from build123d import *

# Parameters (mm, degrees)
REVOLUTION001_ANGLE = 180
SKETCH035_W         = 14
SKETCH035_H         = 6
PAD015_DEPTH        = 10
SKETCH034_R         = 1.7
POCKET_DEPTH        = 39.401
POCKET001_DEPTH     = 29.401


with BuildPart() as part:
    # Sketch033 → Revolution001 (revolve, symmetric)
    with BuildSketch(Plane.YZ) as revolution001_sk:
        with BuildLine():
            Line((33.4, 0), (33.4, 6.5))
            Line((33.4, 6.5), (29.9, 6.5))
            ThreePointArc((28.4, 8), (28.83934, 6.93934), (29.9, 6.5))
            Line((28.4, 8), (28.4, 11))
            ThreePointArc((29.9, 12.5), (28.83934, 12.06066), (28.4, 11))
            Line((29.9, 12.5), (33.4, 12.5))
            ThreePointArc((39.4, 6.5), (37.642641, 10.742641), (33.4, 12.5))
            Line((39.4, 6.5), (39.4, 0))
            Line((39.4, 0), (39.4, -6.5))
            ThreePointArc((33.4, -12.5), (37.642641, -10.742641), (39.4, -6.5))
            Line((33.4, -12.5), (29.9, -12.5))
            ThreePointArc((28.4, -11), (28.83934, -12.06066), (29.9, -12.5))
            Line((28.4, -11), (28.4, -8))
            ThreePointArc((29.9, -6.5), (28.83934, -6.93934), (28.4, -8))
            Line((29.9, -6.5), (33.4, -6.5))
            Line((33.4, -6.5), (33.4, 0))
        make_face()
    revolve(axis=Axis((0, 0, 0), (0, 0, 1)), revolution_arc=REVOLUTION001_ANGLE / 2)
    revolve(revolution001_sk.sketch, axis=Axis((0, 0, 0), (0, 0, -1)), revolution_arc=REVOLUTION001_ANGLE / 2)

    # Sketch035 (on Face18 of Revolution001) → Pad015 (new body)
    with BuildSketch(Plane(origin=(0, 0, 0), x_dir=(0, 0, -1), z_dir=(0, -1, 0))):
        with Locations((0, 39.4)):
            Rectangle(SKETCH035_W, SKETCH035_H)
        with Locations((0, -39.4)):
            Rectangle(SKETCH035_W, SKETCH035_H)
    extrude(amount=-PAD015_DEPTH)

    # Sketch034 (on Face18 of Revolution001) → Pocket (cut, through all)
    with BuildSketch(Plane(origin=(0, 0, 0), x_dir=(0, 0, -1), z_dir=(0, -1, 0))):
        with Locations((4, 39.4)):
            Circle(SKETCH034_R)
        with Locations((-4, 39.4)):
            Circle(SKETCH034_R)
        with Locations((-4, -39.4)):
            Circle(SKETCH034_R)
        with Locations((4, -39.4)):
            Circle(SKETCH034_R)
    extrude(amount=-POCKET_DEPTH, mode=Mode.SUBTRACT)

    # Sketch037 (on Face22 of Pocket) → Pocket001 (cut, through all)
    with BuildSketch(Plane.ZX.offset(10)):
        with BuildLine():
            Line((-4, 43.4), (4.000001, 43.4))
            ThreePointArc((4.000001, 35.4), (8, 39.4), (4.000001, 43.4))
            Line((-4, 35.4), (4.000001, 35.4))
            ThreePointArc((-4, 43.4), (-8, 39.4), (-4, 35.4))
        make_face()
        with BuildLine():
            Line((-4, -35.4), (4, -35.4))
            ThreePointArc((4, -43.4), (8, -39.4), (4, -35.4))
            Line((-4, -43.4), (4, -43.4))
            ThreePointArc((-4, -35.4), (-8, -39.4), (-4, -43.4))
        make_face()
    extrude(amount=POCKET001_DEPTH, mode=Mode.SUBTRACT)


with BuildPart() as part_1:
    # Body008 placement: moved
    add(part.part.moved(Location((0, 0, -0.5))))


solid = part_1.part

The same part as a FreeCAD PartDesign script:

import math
import FreeCAD as App
import Part
import Sketcher
from FreeCAD import Vector

doc = App.newDocument("Part")
body = doc.addObject("PartDesign::Body", "Body")

# Sketch on YZ plane
sketch1 = body.newObject("Sketcher::SketchObject", "Sketch")
sketch1.AttachmentSupport = (doc.getObject("YZ_Plane"), [""])
sketch1.MapMode = "FlatFace"
sketch1.addGeometry([
    Part.LineSegment(Vector(29.9, 6.5, 0), Vector(33.4, 6.5, 0)),  # 0
    Part.LineSegment(Vector(33.4, 6.5, 0), Vector(33.4, -6.5, 0)),  # 1
    Part.LineSegment(Vector(33.4, -6.5, 0), Vector(29.9, -6.5, 0)),  # 2
    Part.ArcOfCircle(Part.Circle(Vector(29.9, -8, 0), Vector(0, 0, 1), 1.5), math.radians(90), math.radians(180)),  # 3
    Part.LineSegment(Vector(28.4, -8, 0), Vector(28.4, -11, 0)),  # 4
    Part.ArcOfCircle(Part.Circle(Vector(29.9, -11, 0), Vector(0, 0, 1), 1.5), math.radians(-180), math.radians(-90)),  # 5
    Part.LineSegment(Vector(29.9, -12.5, 0), Vector(33.4, -12.5, 0)),  # 6
    Part.ArcOfCircle(Part.Circle(Vector(33.4, -6.5, 0), Vector(0, 0, 1), 6), math.radians(-90), math.radians(0)),  # 7
    Part.LineSegment(Vector(39.4, -6.5, 0), Vector(39.4, 6.5, 0)),  # 8
    Part.ArcOfCircle(Part.Circle(Vector(33.4, 6.5, 0), Vector(0, 0, 1), 6), math.radians(0), math.radians(90)),  # 9
    Part.LineSegment(Vector(33.4, 12.5, 0), Vector(29.9, 12.5, 0)),  # 10
    Part.ArcOfCircle(Part.Circle(Vector(29.9, 11, 0), Vector(0, 0, 1), 1.5), math.radians(90), math.radians(180)),  # 11
    Part.LineSegment(Vector(28.4, 11, 0), Vector(28.4, 8, 0)),  # 12
    Part.ArcOfCircle(Part.Circle(Vector(29.9, 8, 0), Vector(0, 0, 1), 1.5), math.radians(-180), math.radians(-90)),  # 13
], False)
sketch1.addConstraint([
    Sketcher.Constraint("Coincident", 0, 2, 1, 1),
    Sketcher.Constraint("Coincident", 1, 2, 2, 1),
    Sketcher.Constraint("Tangent", 2, 2, 3, 1),
    Sketcher.Constraint("Tangent", 3, 2, 4, 1),
    Sketcher.Constraint("Tangent", 4, 2, 5, 1),
    Sketcher.Constraint("Tangent", 5, 2, 6, 1),
    Sketcher.Constraint("Tangent", 6, 2, 7, 1),
    Sketcher.Constraint("Tangent", 7, 2, 8, 1),
    Sketcher.Constraint("Tangent", 8, 2, 9, 1),
    Sketcher.Constraint("Tangent", 9, 2, 10, 1),
    Sketcher.Constraint("Tangent", 10, 2, 11, 1),
    Sketcher.Constraint("Tangent", 11, 2, 12, 1),
    Sketcher.Constraint("Tangent", 12, 2, 13, 1),
    Sketcher.Constraint("Tangent", 13, 2, 0, 1),
    Sketcher.Constraint("Horizontal", 0),
    Sketcher.Constraint("Vertical", 1),
    Sketcher.Constraint("Horizontal", 2),
    Sketcher.Constraint("Vertical", 4),
    Sketcher.Constraint("Horizontal", 6),
    Sketcher.Constraint("Vertical", 8),
    Sketcher.Constraint("Horizontal", 10),
    Sketcher.Constraint("Vertical", 12),
    Sketcher.Constraint("Coincident", 0, 2, 9, 3),
    Sketcher.Constraint("Coincident", 1, 2, 7, 3),
    Sketcher.Constraint("Equal", 3, 5),
    Sketcher.Constraint("Equal", 5, 11),
    Sketcher.Constraint("Equal", 11, 13),
    Sketcher.Constraint("Symmetric", 5, 3, 11, 3, -1),
    Sketcher.Constraint("Radius", 7, 5.999999),
    Sketcher.Constraint("Radius", 3, 1.500001),
    Sketcher.Constraint("DistanceY", 1, 2, 1, 1, 13.0),
    Sketcher.Constraint("DistanceX", 0, 1, 0, 2, 3.5),
    Sketcher.Constraint("DistanceX", -1, 1, 3, 3, 29.900001),
])
revolution = body.newObject("PartDesign::Revolution", "Revolution")
revolution.Profile = sketch1
revolution.ReferenceAxis = (sketch1, ["V_Axis"])
revolution.Angle = 90

# Sketch on YZ plane
sketch2 = body.newObject("Sketcher::SketchObject", "Sketch001")
sketch2.AttachmentSupport = (doc.getObject("YZ_Plane"), [""])
sketch2.MapMode = "FlatFace"
sketch2.addGeometry([
    Part.LineSegment(Vector(29.9, 6.5, 0), Vector(33.4, 6.5, 0)),  # 0
    Part.LineSegment(Vector(33.4, 6.5, 0), Vector(33.4, -6.5, 0)),  # 1
    Part.LineSegment(Vector(33.4, -6.5, 0), Vector(29.9, -6.5, 0)),  # 2
    Part.ArcOfCircle(Part.Circle(Vector(29.9, -8, 0), Vector(0, 0, 1), 1.5), math.radians(90), math.radians(180)),  # 3
    Part.LineSegment(Vector(28.4, -8, 0), Vector(28.4, -11, 0)),  # 4
    Part.ArcOfCircle(Part.Circle(Vector(29.9, -11, 0), Vector(0, 0, 1), 1.5), math.radians(-180), math.radians(-90)),  # 5
    Part.LineSegment(Vector(29.9, -12.5, 0), Vector(33.4, -12.5, 0)),  # 6
    Part.ArcOfCircle(Part.Circle(Vector(33.4, -6.5, 0), Vector(0, 0, 1), 6), math.radians(-90), math.radians(0)),  # 7
    Part.LineSegment(Vector(39.4, -6.5, 0), Vector(39.4, 6.5, 0)),  # 8
    Part.ArcOfCircle(Part.Circle(Vector(33.4, 6.5, 0), Vector(0, 0, 1), 6), math.radians(0), math.radians(90)),  # 9
    Part.LineSegment(Vector(33.4, 12.5, 0), Vector(29.9, 12.5, 0)),  # 10
    Part.ArcOfCircle(Part.Circle(Vector(29.9, 11, 0), Vector(0, 0, 1), 1.5), math.radians(90), math.radians(180)),  # 11
    Part.LineSegment(Vector(28.4, 11, 0), Vector(28.4, 8, 0)),  # 12
    Part.ArcOfCircle(Part.Circle(Vector(29.9, 8, 0), Vector(0, 0, 1), 1.5), math.radians(-180), math.radians(-90)),  # 13
], False)
sketch2.addConstraint([
    Sketcher.Constraint("Coincident", 0, 2, 1, 1),
    Sketcher.Constraint("Coincident", 1, 2, 2, 1),
    Sketcher.Constraint("Tangent", 2, 2, 3, 1),
    Sketcher.Constraint("Tangent", 3, 2, 4, 1),
    Sketcher.Constraint("Tangent", 4, 2, 5, 1),
    Sketcher.Constraint("Tangent", 5, 2, 6, 1),
    Sketcher.Constraint("Tangent", 6, 2, 7, 1),
    Sketcher.Constraint("Tangent", 7, 2, 8, 1),
    Sketcher.Constraint("Tangent", 8, 2, 9, 1),
    Sketcher.Constraint("Tangent", 9, 2, 10, 1),
    Sketcher.Constraint("Tangent", 10, 2, 11, 1),
    Sketcher.Constraint("Tangent", 11, 2, 12, 1),
    Sketcher.Constraint("Tangent", 12, 2, 13, 1),
    Sketcher.Constraint("Tangent", 13, 2, 0, 1),
    Sketcher.Constraint("Horizontal", 0),
    Sketcher.Constraint("Vertical", 1),
    Sketcher.Constraint("Horizontal", 2),
    Sketcher.Constraint("Vertical", 4),
    Sketcher.Constraint("Horizontal", 6),
    Sketcher.Constraint("Vertical", 8),
    Sketcher.Constraint("Horizontal", 10),
    Sketcher.Constraint("Vertical", 12),
    Sketcher.Constraint("Coincident", 0, 2, 9, 3),
    Sketcher.Constraint("Coincident", 1, 2, 7, 3),
    Sketcher.Constraint("Equal", 3, 5),
    Sketcher.Constraint("Equal", 5, 11),
    Sketcher.Constraint("Equal", 11, 13),
    Sketcher.Constraint("Symmetric", 5, 3, 11, 3, -1),
    Sketcher.Constraint("Radius", 7, 5.999999),
    Sketcher.Constraint("Radius", 3, 1.500001),
    Sketcher.Constraint("DistanceY", 1, 2, 1, 1, 13.0),
    Sketcher.Constraint("DistanceX", 0, 1, 0, 2, 3.5),
    Sketcher.Constraint("DistanceX", -1, 1, 3, 3, 29.900001),
])
revolution2 = body.newObject("PartDesign::Revolution", "Revolution001")
revolution2.Profile = sketch2
revolution2.ReferenceAxis = (sketch2, ["V_Axis"])
revolution2.Angle = 90
revolution2.Reversed = True

# Sketch on XZ plane
sketch3 = body.newObject("Sketcher::SketchObject", "Sketch002")
sketch3.AttachmentSupport = (doc.getObject("XZ_Plane"), [""])
sketch3.MapMode = "FlatFace"
sketch3.addGeometry([
    Part.LineSegment(Vector(42, 7, 0), Vector(36, 7, 0)),  # 0
    Part.LineSegment(Vector(36, 7, 0), Vector(36, -7, 0)),  # 1
    Part.LineSegment(Vector(36, -7, 0), Vector(42, -7, 0)),  # 2
    Part.LineSegment(Vector(42, -7, 0), Vector(42, 7, 0)),  # 3
    Part.LineSegment(Vector(-36, 7, 0), Vector(-42, 7, 0)),  # 4
    Part.LineSegment(Vector(-42, 7, 0), Vector(-42, -7, 0)),  # 5
    Part.LineSegment(Vector(-42, -7, 0), Vector(-36, -7, 0)),  # 6
    Part.LineSegment(Vector(-36, -7, 0), Vector(-36, 7, 0)),  # 7
], False)
sketch3.addConstraint([
    Sketcher.Constraint("Coincident", 0, 2, 1, 1),
    Sketcher.Constraint("Coincident", 1, 2, 2, 1),
    Sketcher.Constraint("Coincident", 2, 2, 3, 1),
    Sketcher.Constraint("Coincident", 3, 2, 0, 1),
    Sketcher.Constraint("Coincident", 4, 2, 5, 1),
    Sketcher.Constraint("Coincident", 5, 2, 6, 1),
    Sketcher.Constraint("Coincident", 6, 2, 7, 1),
    Sketcher.Constraint("Coincident", 7, 2, 4, 1),
    Sketcher.Constraint("Horizontal", 0),
    Sketcher.Constraint("Vertical", 1),
    Sketcher.Constraint("Horizontal", 2),
    Sketcher.Constraint("Vertical", 3),
    Sketcher.Constraint("Horizontal", 4),
    Sketcher.Constraint("Vertical", 5),
    Sketcher.Constraint("Horizontal", 6),
    Sketcher.Constraint("Vertical", 7),
    Sketcher.Constraint("Symmetric", 2, 2, 4, 2, -1, 1),
    Sketcher.Constraint("Symmetric", 0, 2, 6, 2, -1, 1),
    Sketcher.Constraint("Horizontal", 3, 2, 4, 2),
    Sketcher.Constraint("DistanceX", 0, 2, 0, 1, 6.0),
    Sketcher.Constraint("DistanceY", 1, 2, 1, 1, 14.0),
    Sketcher.Constraint("DistanceX", -1, 1, 0, 2, 36.4),
])
pad1 = body.newObject("PartDesign::Pad", "Pad")
pad1.Profile = sketch3
pad1.Length = 10
pad1.Reversed = True

# Sketch on XZ plane
sketch4 = body.newObject("Sketcher::SketchObject", "Sketch003")
sketch4.AttachmentSupport = (doc.getObject("XZ_Plane"), [""])
sketch4.MapMode = "FlatFace"
sketch4.addGeometry([
    Part.Circle(Vector(39.4, -4, 0), Vector(0, 0, 1), 1.7),
    Part.Circle(Vector(39.4, 4, 0), Vector(0, 0, 1), 1.7),
    Part.Circle(Vector(-39.4, 4, 0), Vector(0, 0, 1), 1.7),
    Part.Circle(Vector(-39.4, -4, 0), Vector(0, 0, 1), 1.7),
], False)
sketch4.addConstraint([
    Sketcher.Constraint("Equal", 0, 1),
    Sketcher.Constraint("Equal", 1, 2),
    Sketcher.Constraint("Equal", 2, 3),
    Sketcher.Constraint("Symmetric", 0, 3, 2, 3, -1, 1),
    Sketcher.Constraint("Symmetric", 1, 3, 3, 3, -1, 1),
    Sketcher.Constraint("Symmetric", 1, 3, 2, 3, -2),
    Sketcher.Constraint("Diameter", 0, 3.4),
    Sketcher.Constraint("DistanceY", 0, 3, -1, 1, 4.0),
    Sketcher.Constraint("DistanceX", -1, 1, 0, 3, 39.4),
])
pocket1 = body.newObject("PartDesign::Pocket", "Pocket")
pocket1.Profile = sketch4
pocket1.Type = "ThroughAll"

# Sketch on XZ plane
sketch5 = body.newObject("Sketcher::SketchObject", "Sketch004")
sketch5.AttachmentSupport = (doc.getObject("XZ_Plane"), [""])
sketch5.MapMode = "FlatFace"
sketch5.AttachmentOffset = App.Placement(Vector(0, 0, -10), App.Rotation())
sketch5.addGeometry([
    Part.LineSegment(Vector(43.4, 4, 0), Vector(43.4, -4, 0)),  # 0
    Part.ArcOfCircle(Part.Circle(Vector(39.4, -4, 0), Vector(0, 0, 1), 4), math.radians(180), math.radians(360)),  # 1
    Part.LineSegment(Vector(35.4, -4, 0), Vector(35.4, 4, 0)),  # 2
    Part.ArcOfCircle(Part.Circle(Vector(39.4, 4, 0), Vector(0, 0, 1), 4), math.radians(0), math.radians(180)),  # 3
    Part.LineSegment(Vector(-35.4, 4, 0), Vector(-35.4, -4, 0)),  # 4
    Part.ArcOfCircle(Part.Circle(Vector(-39.4, -4, 0), Vector(0, 0, 1), 4), math.radians(180), math.radians(360)),  # 5
    Part.LineSegment(Vector(-43.4, -4, 0), Vector(-43.4, 4, 0)),  # 6
    Part.ArcOfCircle(Part.Circle(Vector(-39.4, 4, 0), Vector(0, 0, 1), 4), math.radians(0), math.radians(180)),  # 7
], False)
sketch5.addConstraint([
    Sketcher.Constraint("Tangent", 0, 2, 1, 2),
    Sketcher.Constraint("Tangent", 1, 1, 2, 1),
    Sketcher.Constraint("Tangent", 2, 2, 3, 2),
    Sketcher.Constraint("Tangent", 3, 1, 0, 1),
    Sketcher.Constraint("Tangent", 4, 2, 5, 2),
    Sketcher.Constraint("Tangent", 5, 1, 6, 1),
    Sketcher.Constraint("Tangent", 6, 2, 7, 2),
    Sketcher.Constraint("Tangent", 7, 1, 4, 1),
    Sketcher.Constraint("Vertical", 0),
    Sketcher.Constraint("Vertical", 2),
    Sketcher.Constraint("Vertical", 4),
    Sketcher.Constraint("Vertical", 6),
    Sketcher.Constraint("Equal", 3, 5),
    Sketcher.Constraint("Symmetric", 3, 3, 5, 3, -1, 1),
    Sketcher.Constraint("Horizontal", 1, 3, 5, 3),
    Sketcher.Constraint("Horizontal", 3, 3, 7, 3),
    Sketcher.Constraint("Radius", 1, 4.0),
    Sketcher.Constraint("DistanceY", 0, 2, 0, 1, 8.000001),
    Sketcher.Constraint("DistanceX", -1, 1, 1, 3, 39.4),
])
pocket2 = body.newObject("PartDesign::Pocket", "Pocket001")
pocket2.Profile = sketch5
pocket2.Type = "ThroughAll"
body2 = doc.addObject("PartDesign::Body", "Body001")
doc.recompute()

body.Placement = App.Placement(Vector(0, 0, -0.5), App.Rotation(Vector(0, 0, 1), 0))
boolean = body2.newObject("PartDesign::Boolean", "Boolean")
boolean.Type = "Fuse"
boolean.addObjects([body])

doc.recompute()
